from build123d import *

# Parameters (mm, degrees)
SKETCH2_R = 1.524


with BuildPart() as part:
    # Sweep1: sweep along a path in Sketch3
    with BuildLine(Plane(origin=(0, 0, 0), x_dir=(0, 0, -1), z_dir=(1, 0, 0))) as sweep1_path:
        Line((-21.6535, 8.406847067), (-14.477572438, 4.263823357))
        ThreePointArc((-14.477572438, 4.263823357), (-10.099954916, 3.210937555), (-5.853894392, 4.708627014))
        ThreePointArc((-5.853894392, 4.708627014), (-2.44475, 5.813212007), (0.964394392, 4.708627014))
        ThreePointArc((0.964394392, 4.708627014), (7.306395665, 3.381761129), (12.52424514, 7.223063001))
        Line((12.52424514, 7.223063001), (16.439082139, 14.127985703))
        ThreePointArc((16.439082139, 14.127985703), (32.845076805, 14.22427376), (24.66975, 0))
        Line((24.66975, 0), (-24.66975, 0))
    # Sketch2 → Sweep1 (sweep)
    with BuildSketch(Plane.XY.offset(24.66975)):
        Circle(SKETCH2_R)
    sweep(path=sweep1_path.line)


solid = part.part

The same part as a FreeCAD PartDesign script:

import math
import FreeCAD as App
import Part
import Sketcher
from FreeCAD import Vector
Q = App.Units.Quantity

doc = App.newDocument("Part")
body = doc.addObject("PartDesign::Body", "Body")

# Sketch on XY plane
sketch1 = body.newObject("Sketcher::SketchObject", "Sketch")
sketch1.AttachmentSupport = (doc.getObject("XY_Plane"), [""])
sketch1.MapMode = "FlatFace"
sketch1.AttachmentOffset = App.Placement(Vector(0, 0, 24.66975), App.Rotation())
sketch1.addGeometry(Part.Circle(Vector(0, 0, 0), Vector(0, 0, 1), 1.5), False)
sketch1.addConstraint(Sketcher.Constraint("Coincident", 0, 3, -1, 1))
sketch1.addConstraint(Sketcher.Constraint("Diameter", 0, Q("0.12 in")))

# Sketch on YZ plane
sketch2 = body.newObject("Sketcher::SketchObject", "Sketch001")
sketch2.AttachmentSupport = (doc.getObject("YZ_Plane"), [""])
sketch2.MapMode = "FlatFace"
sketch2.addGeometry(Part.LineSegment(Vector(8, 22, 0), Vector(4, 14, 0)), False)
sketch2.addGeometry(Part.ArcOfCircle(Part.Circle(Vector(11, 11, 0), Vector(0, 0, 1), 8), math.radians(150), math.radians(216)), False)
sketch2.addGeometry(Part.ArcOfCircle(Part.Circle(Vector(0, 2, 0), Vector(0, 0, 1), 6), math.radians(-36), math.radians(36)), False)
sketch2.addGeometry(Part.ArcOfCircle(Part.Circle(Vector(11, -6, 0), Vector(0, 0, 1), 8), math.radians(144), math.radians(240)), False)
sketch2.addGeometry(Part.LineSegment(Vector(7, -13, 0), Vector(14, -16, 0)), False)
sketch2.addGeometry(Part.ArcOfCircle(Part.Circle(Vector(9, -25, 0), Vector(0, 0, 1), 9), math.radians(180), math.radians(420)), False)
sketch2.addGeometry(Part.LineSegment(Vector(0, -25, 0), Vector(0, 25, 0)), False)
sketch2.addConstraint(Sketcher.Constraint("Tangent", 0, 2, 1, 1))
sketch2.addConstraint(Sketcher.Constraint("Tangent", 1, 2, 2, 2))
sketch2.addConstraint(Sketcher.Constraint("Tangent", 2, 1, 3, 1))
sketch2.addConstraint(Sketcher.Constraint("Tangent", 3, 2, 4, 1))
sketch2.addConstraint(Sketcher.Constraint("Tangent", 4, 2, 5, 2))
sketch2.addConstraint(Sketcher.Constraint("Tangent", 5, 1, 6, 1))
sketch2.addConstraint(Sketcher.Constraint("Vertical", 6))
sketch2.addConstraint(Sketcher.Constraint("Equal", 1, 3))
sketch2.addConstraint(Sketcher.Constraint("Symmetric", 5, 1, 6, 2, -1, 1))
sketch2.addConstraint(Sketcher.Constraint("PointOnObject", 2, 3, -2))
sketch2.addConstraint(Sketcher.Constraint("Vertical", 1, 3, 3, 3))
sketch2.addConstraint(Sketcher.Constraint("Angle", 0, Q("-120 deg")))
sketch2.addConstraint(Sketcher.Constraint("Radius", 1, Q("0.3125 in")))
sketch2.addConstraint(Sketcher.Constraint("Radius", 5, Q("0.3725 in")))
sketch2.addConstraint(Sketcher.Constraint("Distance", 4, Q("0.3125 in")))
sketch2.addConstraint(Sketcher.Constraint("DistanceY", 6, 1, 6, 2, Q("1.9425 in")))
sketch2.addConstraint(Sketcher.Constraint("DistanceX", 5, 3, 3, 3, Q("0.066 in")))
sketch2.addConstraint(Sketcher.Constraint("DistanceY", 2, 3, 6, 2, Q("0.875 in")))
sketch2.addConstraint(Sketcher.Constraint("DistanceY", -1, 1, 0, 1, Q("0.8525 in")))
doc.recompute()

additivepipe = body.newObject("PartDesign::AdditivePipe", "AdditivePipe")
additivepipe.Profile = sketch1
additivepipe.Spine = (sketch2, ["Edge1", "Edge2", "Edge3", "Edge4", "Edge5", "Edge6", "Edge7"])

doc.recompute()
